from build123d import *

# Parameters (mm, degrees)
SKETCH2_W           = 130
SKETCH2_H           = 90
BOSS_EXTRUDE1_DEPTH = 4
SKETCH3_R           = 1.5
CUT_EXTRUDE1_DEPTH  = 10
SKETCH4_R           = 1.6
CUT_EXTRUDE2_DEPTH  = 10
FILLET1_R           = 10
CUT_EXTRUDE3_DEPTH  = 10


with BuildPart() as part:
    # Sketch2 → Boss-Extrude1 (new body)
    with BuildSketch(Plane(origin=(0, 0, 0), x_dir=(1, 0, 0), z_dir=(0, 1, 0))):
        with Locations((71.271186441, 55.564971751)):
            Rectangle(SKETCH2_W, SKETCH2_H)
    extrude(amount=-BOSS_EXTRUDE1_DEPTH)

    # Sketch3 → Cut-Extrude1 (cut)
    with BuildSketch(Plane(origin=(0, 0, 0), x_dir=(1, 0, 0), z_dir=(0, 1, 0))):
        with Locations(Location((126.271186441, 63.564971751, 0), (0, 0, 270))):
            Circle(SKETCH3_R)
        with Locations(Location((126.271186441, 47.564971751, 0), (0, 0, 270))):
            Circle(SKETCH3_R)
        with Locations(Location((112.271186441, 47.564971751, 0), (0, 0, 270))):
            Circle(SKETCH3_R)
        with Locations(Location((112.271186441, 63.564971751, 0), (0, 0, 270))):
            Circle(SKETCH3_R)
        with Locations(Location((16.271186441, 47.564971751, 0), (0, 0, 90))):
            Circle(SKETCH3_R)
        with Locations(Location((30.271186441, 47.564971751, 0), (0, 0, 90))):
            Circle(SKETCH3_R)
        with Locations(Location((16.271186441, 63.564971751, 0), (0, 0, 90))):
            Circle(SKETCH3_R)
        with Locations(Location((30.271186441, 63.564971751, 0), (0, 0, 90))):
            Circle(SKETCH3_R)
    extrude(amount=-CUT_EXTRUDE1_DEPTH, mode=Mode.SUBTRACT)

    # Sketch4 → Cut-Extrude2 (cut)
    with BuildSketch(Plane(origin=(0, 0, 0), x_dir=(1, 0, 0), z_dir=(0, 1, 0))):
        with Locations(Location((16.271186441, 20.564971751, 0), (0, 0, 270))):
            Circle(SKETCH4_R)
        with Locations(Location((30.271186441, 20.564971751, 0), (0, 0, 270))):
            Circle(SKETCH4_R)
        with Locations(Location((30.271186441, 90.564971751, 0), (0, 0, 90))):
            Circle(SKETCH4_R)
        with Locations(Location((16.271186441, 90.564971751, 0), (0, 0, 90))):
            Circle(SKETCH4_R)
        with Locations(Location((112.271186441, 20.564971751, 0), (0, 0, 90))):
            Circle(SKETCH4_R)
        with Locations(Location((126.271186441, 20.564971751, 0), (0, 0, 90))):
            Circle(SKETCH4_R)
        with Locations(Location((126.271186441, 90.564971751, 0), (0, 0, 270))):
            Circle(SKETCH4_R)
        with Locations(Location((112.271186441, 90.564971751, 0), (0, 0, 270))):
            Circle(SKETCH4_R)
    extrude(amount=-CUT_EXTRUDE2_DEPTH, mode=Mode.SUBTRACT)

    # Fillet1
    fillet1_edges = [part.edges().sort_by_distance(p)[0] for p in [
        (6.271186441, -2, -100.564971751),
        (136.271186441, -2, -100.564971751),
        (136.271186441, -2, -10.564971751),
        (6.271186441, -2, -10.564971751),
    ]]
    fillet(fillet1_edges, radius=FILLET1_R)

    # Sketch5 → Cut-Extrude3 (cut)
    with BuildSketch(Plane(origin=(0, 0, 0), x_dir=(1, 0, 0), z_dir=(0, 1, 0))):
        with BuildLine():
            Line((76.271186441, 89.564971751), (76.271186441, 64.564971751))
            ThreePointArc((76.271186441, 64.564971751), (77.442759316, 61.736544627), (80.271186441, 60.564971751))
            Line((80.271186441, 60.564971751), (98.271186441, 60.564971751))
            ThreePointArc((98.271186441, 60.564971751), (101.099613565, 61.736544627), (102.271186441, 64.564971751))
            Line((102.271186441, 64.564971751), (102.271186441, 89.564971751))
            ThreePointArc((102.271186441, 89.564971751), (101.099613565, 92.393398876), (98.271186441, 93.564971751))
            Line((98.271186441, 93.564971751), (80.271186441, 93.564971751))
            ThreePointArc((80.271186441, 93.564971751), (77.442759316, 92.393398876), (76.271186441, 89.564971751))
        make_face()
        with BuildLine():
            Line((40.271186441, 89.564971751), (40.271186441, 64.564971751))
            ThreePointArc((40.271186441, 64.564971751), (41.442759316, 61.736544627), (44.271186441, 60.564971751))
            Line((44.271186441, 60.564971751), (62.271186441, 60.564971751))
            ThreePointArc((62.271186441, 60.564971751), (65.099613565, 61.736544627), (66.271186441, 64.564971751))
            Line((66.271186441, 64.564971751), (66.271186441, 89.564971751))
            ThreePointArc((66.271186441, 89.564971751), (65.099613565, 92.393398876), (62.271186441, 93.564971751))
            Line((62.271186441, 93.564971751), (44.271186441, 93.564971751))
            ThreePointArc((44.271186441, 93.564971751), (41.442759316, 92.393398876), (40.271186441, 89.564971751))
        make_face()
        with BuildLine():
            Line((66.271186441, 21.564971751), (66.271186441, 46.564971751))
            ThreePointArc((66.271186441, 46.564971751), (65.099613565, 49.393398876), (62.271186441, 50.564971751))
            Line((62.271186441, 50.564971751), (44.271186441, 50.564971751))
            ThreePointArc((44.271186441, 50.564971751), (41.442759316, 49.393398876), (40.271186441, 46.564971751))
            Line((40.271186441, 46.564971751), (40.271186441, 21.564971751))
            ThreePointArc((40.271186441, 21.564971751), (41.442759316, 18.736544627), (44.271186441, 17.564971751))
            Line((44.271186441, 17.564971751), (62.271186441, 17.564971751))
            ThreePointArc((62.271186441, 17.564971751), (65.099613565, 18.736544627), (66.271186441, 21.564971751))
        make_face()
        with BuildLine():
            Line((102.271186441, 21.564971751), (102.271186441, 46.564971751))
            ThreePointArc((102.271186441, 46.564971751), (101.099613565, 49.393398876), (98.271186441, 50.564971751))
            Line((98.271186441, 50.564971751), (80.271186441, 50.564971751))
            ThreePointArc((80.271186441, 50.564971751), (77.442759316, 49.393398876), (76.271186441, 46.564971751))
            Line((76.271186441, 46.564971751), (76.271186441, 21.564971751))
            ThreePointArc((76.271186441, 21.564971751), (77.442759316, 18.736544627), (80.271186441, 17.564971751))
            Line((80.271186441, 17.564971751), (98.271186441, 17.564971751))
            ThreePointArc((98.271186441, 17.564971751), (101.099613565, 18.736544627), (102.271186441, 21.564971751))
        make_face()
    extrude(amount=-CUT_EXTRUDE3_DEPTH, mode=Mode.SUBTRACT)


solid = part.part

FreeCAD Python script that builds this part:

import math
import FreeCAD as App
import Part
import Sketcher


def edges_at(feature, points):
    """Names of the edges that pass closest to the given points."""
    edges = feature.Shape.Edges
    near = lambda p: min(range(len(edges)), key=lambda i: edges[i].distToShape(Part.Vertex(*p))[0])
    return sorted({f"Edge{near(p) + 1}" for p in points})


def add_polygon(sketch, points):
    """Adds a closed chain of lines whose ends are joined by coincident constraints."""
    first, n = sketch.GeometryCount, len(points)
    for a, b in zip(points, points[1:] + points[:1]):
        sketch.addGeometry(Part.LineSegment(App.Vector(*a, 0), App.Vector(*b, 0)), False)
    for i in range(n):
        sketch.addConstraint(Sketcher.Constraint("Coincident", first + i, 2, first + (i + 1) % n, 1))

doc = App.newDocument("Part")
body = doc.addObject("PartDesign::Body", "Body")

# Sketch on XZ plane
sketch1 = doc.addObject("Sketcher::SketchObject", "Sketch")
body.addObject(sketch1)
sketch1.AttachmentSupport = (doc.XZ_Plane, [""])
sketch1.MapMode = "FlatFace"
add_polygon(sketch1, [(6, -101), (6, -11), (136, -11), (136, -101)])  # lines 0-3
sketch1.addConstraint(Sketcher.Constraint("Vertical", 0))
sketch1.addConstraint(Sketcher.Constraint("Horizontal", 1))
sketch1.addConstraint(Sketcher.Constraint("Vertical", 2))
sketch1.addConstraint(Sketcher.Constraint("Horizontal", 3))
sketch1.addConstraint(Sketcher.Constraint("DistanceX", 1, 1, 1, 2, 130.0))
sketch1.addConstraint(Sketcher.Constraint("DistanceY", 0, 1, 0, 2, 90.0))
sketch1.addConstraint(Sketcher.Constraint("DistanceY", 0, 2, -1, 1, 10.564972))
sketch1.addConstraint(Sketcher.Constraint("DistanceX", -1, 1, 0, 2, 6.271186))
pad1 = doc.addObject("PartDesign::Pad", "Pad")
body.addObject(pad1)
pad1.Profile = sketch1
pad1.Length = 4

# Sketch on XZ plane
sketch2 = doc.addObject("Sketcher::SketchObject", "Sketch001")
body.addObject(sketch2)
sketch2.AttachmentSupport = (doc.XZ_Plane, [""])
sketch2.MapMode = "FlatFace"
sketch2.addGeometry(Part.Circle(App.Vector(126.3, -63.6, 0), App.Vector(0, 0, 1), 1.5), False)
sketch2.addGeometry(Part.Circle(App.Vector(126.3, -47.6, 0), App.Vector(0, 0, 1), 1.5), False)
sketch2.addGeometry(Part.Circle(App.Vector(112.3, -47.6, 0), App.Vector(0, 0, 1), 1.5), False)
sketch2.addGeometry(Part.Circle(App.Vector(112.3, -63.6, 0), App.Vector(0, 0, 1), 1.5), False)
sketch2.addGeometry(Part.Circle(App.Vector(16.3, -47.6, 0), App.Vector(0, 0, 1), 1.5), False)
sketch2.addGeometry(Part.Circle(App.Vector(30.3, -47.6, 0), App.Vector(0, 0, 1), 1.5), False)
sketch2.addGeometry(Part.Circle(App.Vector(16.3, -63.6, 0), App.Vector(0, 0, 1), 1.5), False)
sketch2.addGeometry(Part.Circle(App.Vector(30.3, -63.6, 0), App.Vector(0, 0, 1), 1.5), False)
sketch2.addConstraint(Sketcher.Constraint("Equal", 0, 1))
sketch2.addConstraint(Sketcher.Constraint("Equal", 1, 2))
sketch2.addConstraint(Sketcher.Constraint("Equal", 2, 3))
sketch2.addConstraint(Sketcher.Constraint("Equal", 3, 4))
sketch2.addConstraint(Sketcher.Constraint("Equal", 4, 5))
sketch2.addConstraint(Sketcher.Constraint("Equal", 5, 6))
sketch2.addConstraint(Sketcher.Constraint("Equal", 6, 7))
sketch2.addConstraint(Sketcher.Constraint("Horizontal", 1, 3, 2, 3))
sketch2.addConstraint(Sketcher.Constraint("Horizontal", 0, 3, 3, 3))
sketch2.addConstraint(Sketcher.Constraint("Horizontal", 2, 3, 4, 3))
sketch2.addConstraint(Sketcher.Constraint("Horizontal", 4, 3, 5, 3))
sketch2.addConstraint(Sketcher.Constraint("Horizontal", 3, 3, 6, 3))
sketch2.addConstraint(Sketcher.Constraint("Horizontal", 6, 3, 7, 3))
sketch2.addConstraint(Sketcher.Constraint("Vertical", 0, 3, 1, 3))
sketch2.addConstraint(Sketcher.Constraint("Vertical", 2, 3, 3, 3))
sketch2.addConstraint(Sketcher.Constraint("Vertical", 4, 3, 6, 3))
sketch2.addConstraint(Sketcher.Constraint("Vertical", 5, 3, 7, 3))
sketch2.addConstraint(Sketcher.Constraint("Diameter", 0, 3.0))
sketch2.addConstraint(Sketcher.Constraint("DistanceY", 0, 3, 1, 3, 16.0))
sketch2.addConstraint(Sketcher.Constraint("DistanceX", 2, 3, 1, 3, 14.0))
sketch2.addConstraint(Sketcher.Constraint("DistanceX", 4, 3, 2, 3, 96.0))
sketch2.addConstraint(Sketcher.Constraint("DistanceX", 4, 3, 5, 3, 14.0))
sketch2.addConstraint(Sketcher.Constraint("DistanceY", 0, 3, -1, 1, 63.564972))
sketch2.addConstraint(Sketcher.Constraint("DistanceX", -1, 1, 0, 3, 126.271186))
pocket1 = doc.addObject("PartDesign::Pocket", "Pocket")
body.addObject(pocket1)
pocket1.Profile = sketch2
pocket1.Length = 10
pocket1.Reversed = True

# Sketch on XZ plane
sketch3 = doc.addObject("Sketcher::SketchObject", "Sketch002")
body.addObject(sketch3)
sketch3.AttachmentSupport = (doc.XZ_Plane, [""])
sketch3.MapMode = "FlatFace"
sketch3.addGeometry(Part.Circle(App.Vector(16.3, -20.6, 0), App.Vector(0, 0, 1), 1.6), False)
sketch3.addGeometry(Part.Circle(App.Vector(30.3, -20.6, 0), App.Vector(0, 0, 1), 1.6), False)
sketch3.addGeometry(Part.Circle(App.Vector(30.3, -90.6, 0), App.Vector(0, 0, 1), 1.6), False)
sketch3.addGeometry(Part.Circle(App.Vector(16.3, -90.6, 0), App.Vector(0, 0, 1), 1.6), False)
sketch3.addGeometry(Part.Circle(App.Vector(112.3, -20.6, 0), App.Vector(0, 0, 1), 1.6), False)
sketch3.addGeometry(Part.Circle(App.Vector(126.3, -20.6, 0), App.Vector(0, 0, 1), 1.6), False)
sketch3.addGeometry(Part.Circle(App.Vector(126.3, -90.6, 0), App.Vector(0, 0, 1), 1.6), False)
sketch3.addGeometry(Part.Circle(App.Vector(112.3, -90.6, 0), App.Vector(0, 0, 1), 1.6), False)
sketch3.addConstraint(Sketcher.Constraint("Equal", 0, 1))
sketch3.addConstraint(Sketcher.Constraint("Equal", 1, 2))
sketch3.addConstraint(Sketcher.Constraint("Equal", 2, 3))
sketch3.addConstraint(Sketcher.Constraint("Equal", 3, 4))
sketch3.addConstraint(Sketcher.Constraint("Equal", 4, 5))
sketch3.addConstraint(Sketcher.Constraint("Equal", 5, 6))
sketch3.addConstraint(Sketcher.Constraint("Equal", 6, 7))
sketch3.addConstraint(Sketcher.Constraint("Horizontal", 0, 3, 1, 3))
sketch3.addConstraint(Sketcher.Constraint("Horizontal", 2, 3, 3, 3))
sketch3.addConstraint(Sketcher.Constraint("Horizontal", 1, 3, 4, 3))
sketch3.addConstraint(Sketcher.Constraint("Horizontal", 4, 3, 5, 3))
sketch3.addConstraint(Sketcher.Constraint("Horizontal", 3, 3, 6, 3))
sketch3.addConstraint(Sketcher.Constraint("Horizontal", 6, 3, 7, 3))
sketch3.addConstraint(Sketcher.Constraint("Vertical", 1, 3, 2, 3))
sketch3.addConstraint(Sketcher.Constraint("Vertical", 0, 3, 3, 3))
sketch3.addConstraint(Sketcher.Constraint("Vertical", 5, 3, 6, 3))
sketch3.addConstraint(Sketcher.Constraint("Vertical", 4, 3, 7, 3))
sketch3.addConstraint(Sketcher.Constraint("Diameter", 0, 3.2))
sketch3.addConstraint(Sketcher.Constraint("DistanceX", 0, 3, 1, 3, 14.0))
sketch3.addConstraint(Sketcher.Constraint("DistanceY", 2, 3, 1, 3, 70.0))
sketch3.addConstraint(Sketcher.Constraint("DistanceX", 1, 3, 4, 3, 82.0))
sketch3.addConstraint(Sketcher.Constraint("DistanceX", 4, 3, 5, 3, 14.0))
sketch3.addConstraint(Sketcher.Constraint("DistanceY", 0, 3, -1, 1, 20.564972))
sketch3.addConstraint(Sketcher.Constraint("DistanceX", -1, 1, 0, 3, 16.271186))
pocket2 = doc.addObject("PartDesign::Pocket", "Pocket001")
body.addObject(pocket2)
pocket2.Profile = sketch3
pocket2.Length = 10
pocket2.Reversed = True
doc.recompute()

fillet = doc.addObject("PartDesign::Fillet", "Fillet")
body.addObject(fillet)
fillet.Base = (pocket2, edges_at(pocket2, [
    (6.271, -2, -100.565),
    (136.271, -2, -100.565),
    (136.271, -2, -10.565),
    (6.271, -2, -10.565),
]))
fillet.Radius = 10

# Sketch on XZ plane
sketch4 = doc.addObject("Sketcher::SketchObject", "Sketch003")
body.addObject(sketch4)
sketch4.AttachmentSupport = (doc.XZ_Plane, [""])
sketch4.MapMode = "FlatFace"
sketch4.addGeometry(Part.LineSegment(App.Vector(76.3, -89.6, 0), App.Vector(76.3, -64.6, 0)), False)
sketch4.addGeometry(Part.ArcOfCircle(Part.Circle(App.Vector(80.3, -64.6, 0), App.Vector(0, 0, 1), 4), math.radians(90), math.radians(180)), False)
sketch4.addGeometry(Part.LineSegment(App.Vector(80.3, -60.6, 0), App.Vector(98.3, -60.6, 0)), False)
sketch4.addGeometry(Part.ArcOfCircle(Part.Circle(App.Vector(98.3, -64.6, 0), App.Vector(0, 0, 1), 4), math.radians(0), math.radians(90)), False)
sketch4.addGeometry(Part.LineSegment(App.Vector(102.3, -64.6, 0), App.Vector(102.3, -89.6, 0)), False)
sketch4.addGeometry(Part.ArcOfCircle(Part.Circle(App.Vector(98.3, -89.6, 0), App.Vector(0, 0, 1), 4), math.radians(-90), math.radians(0)), False)
sketch4.addGeometry(Part.LineSegment(App.Vector(98.3, -93.6, 0), App.Vector(80.3, -93.6, 0)), False)
sketch4.addGeometry(Part.ArcOfCircle(Part.Circle(App.Vector(80.3, -89.6, 0), App.Vector(0, 0, 1), 4), math.radians(180), math.radians(270)), False)
sketch4.addGeometry(Part.LineSegment(App.Vector(40.3, -89.6, 0), App.Vector(40.3, -64.6, 0)), False)
sketch4.addGeometry(Part.ArcOfCircle(Part.Circle(App.Vector(44.3, -64.6, 0), App.Vector(0, 0, 1), 4), math.radians(90), math.radians(180)), False)
sketch4.addGeometry(Part.LineSegment(App.Vector(44.3, -60.6, 0), App.Vector(62.3, -60.6, 0)), False)
sketch4.addGeometry(Part.ArcOfCircle(Part.Circle(App.Vector(62.3, -64.6, 0), App.Vector(0, 0, 1), 4), math.radians(0), math.radians(90)), False)
sketch4.addGeometry(Part.LineSegment(App.Vector(66.3, -64.6, 0), App.Vector(66.3, -89.6, 0)), False)
sketch4.addGeometry(Part.ArcOfCircle(Part.Circle(App.Vector(62.3, -89.6, 0), App.Vector(0, 0, 1), 4), math.radians(-90), math.radians(0)), False)
sketch4.addGeometry(Part.LineSegment(App.Vector(62.3, -93.6, 0), App.Vector(44.3, -93.6, 0)), False)
sketch4.addGeometry(Part.ArcOfCircle(Part.Circle(App.Vector(44.3, -89.6, 0), App.Vector(0, 0, 1), 4), math.radians(180), math.radians(270)), False)
sketch4.addGeometry(Part.LineSegment(App.Vector(66.3, -21.6, 0), App.Vector(66.3, -46.6, 0)), False)
sketch4.addGeometry(Part.ArcOfCircle(Part.Circle(App.Vector(62.3, -46.6, 0), App.Vector(0, 0, 1), 4), math.radians(-90), math.radians(0)), False)
sketch4.addGeometry(Part.LineSegment(App.Vector(62.3, -50.6, 0), App.Vector(44.3, -50.6, 0)), False)
sketch4.addGeometry(Part.ArcOfCircle(Part.Circle(App.Vector(44.3, -46.6, 0), App.Vector(0, 0, 1), 4), math.radians(180), math.radians(270)), False)
sketch4.addGeometry(Part.LineSegment(App.Vector(40.3, -46.6, 0), App.Vector(40.3, -21.6, 0)), False)
sketch4.addGeometry(Part.ArcOfCircle(Part.Circle(App.Vector(44.3, -21.6, 0), App.Vector(0, 0, 1), 4), math.radians(90), math.radians(180)), False)
sketch4.addGeometry(Part.LineSegment(App.Vector(44.3, -17.6, 0), App.Vector(62.3, -17.6, 0)), False)
sketch4.addGeometry(Part.ArcOfCircle(Part.Circle(App.Vector(62.3, -21.6, 0), App.Vector(0, 0, 1), 4), math.radians(0), math.radians(90)), False)
sketch4.addGeometry(Part.LineSegment(App.Vector(102.3, -21.6, 0), App.Vector(102.3, -46.6, 0)), False)
sketch4.addGeometry(Part.ArcOfCircle(Part.Circle(App.Vector(98.3, -46.6, 0), App.Vector(0, 0, 1), 4), math.radians(-90), math.radians(0)), False)
sketch4.addGeometry(Part.LineSegment(App.Vector(98.3, -50.6, 0), App.Vector(80.3, -50.6, 0)), False)
sketch4.addGeometry(Part.ArcOfCircle(Part.Circle(App.Vector(80.3, -46.6, 0), App.Vector(0, 0, 1), 4), math.radians(180), math.radians(270)), False)
sketch4.addGeometry(Part.LineSegment(App.Vector(76.3, -46.6, 0), App.Vector(76.3, -21.6, 0)), False)
sketch4.addGeometry(Part.ArcOfCircle(Part.Circle(App.Vector(80.3, -21.6, 0), App.Vector(0, 0, 1), 4), math.radians(90), math.radians(180)), False)
sketch4.addGeometry(Part.LineSegment(App.Vector(80.3, -17.6, 0), App.Vector(98.3, -17.6, 0)), False)
sketch4.addGeometry(Part.ArcOfCircle(Part.Circle(App.Vector(98.3, -21.6, 0), App.Vector(0, 0, 1), 4), math.radians(0), math.radians(90)), False)
sketch4.addConstraint(Sketcher.Constraint("Tangent", 0, 2, 1, 2))
sketch4.addConstraint(Sketcher.Constraint("Tangent", 1, 1, 2, 1))
sketch4.addConstraint(Sketcher.Constraint("Tangent", 2, 2, 3, 2))
sketch4.addConstraint(Sketcher.Constraint("Tangent", 3, 1, 4, 1))
sketch4.addConstraint(Sketcher.Constraint("Tangent", 4, 2, 5, 2))
sketch4.addConstraint(Sketcher.Constraint("Tangent", 5, 1, 6, 1))
sketch4.addConstraint(Sketcher.Constraint("Tangent", 6, 2, 7, 2))
sketch4.addConstraint(Sketcher.Constraint("Tangent", 7, 1, 0, 1))
sketch4.addConstraint(Sketcher.Constraint("Tangent", 8, 2, 9, 2))
sketch4.addConstraint(Sketcher.Constraint("Tangent", 9, 1, 10, 1))
sketch4.addConstraint(Sketcher.Constraint("Tangent", 10, 2, 11, 2))
sketch4.addConstraint(Sketcher.Constraint("Tangent", 11, 1, 12, 1))
sketch4.addConstraint(Sketcher.Constraint("Tangent", 12, 2, 13, 2))
sketch4.addConstraint(Sketcher.Constraint("Tangent", 13, 1, 14, 1))
sketch4.addConstraint(Sketcher.Constraint("Tangent", 14, 2, 15, 2))
sketch4.addConstraint(Sketcher.Constraint("Tangent", 15, 1, 8, 1))
sketch4.addConstraint(Sketcher.Constraint("Tangent", 16, 2, 17, 2))
sketch4.addConstraint(Sketcher.Constraint("Tangent", 17, 1, 18, 1))
sketch4.addConstraint(Sketcher.Constraint("Tangent", 18, 2, 19, 2))
sketch4.addConstraint(Sketcher.Constraint("Tangent", 19, 1, 20, 1))
sketch4.addConstraint(Sketcher.Constraint("Tangent", 20, 2, 21, 2))
sketch4.addConstraint(Sketcher.Constraint("Tangent", 21, 1, 22, 1))
sketch4.addConstraint(Sketcher.Constraint("Tangent", 22, 2, 23, 2))
sketch4.addConstraint(Sketcher.Constraint("Tangent", 23, 1, 16, 1))
sketch4.addConstraint(Sketcher.Constraint("Tangent", 24, 2, 25, 2))
sketch4.addConstraint(Sketcher.Constraint("Tangent", 25, 1, 26, 1))
sketch4.addConstraint(Sketcher.Constraint("Tangent", 26, 2, 27, 2))
sketch4.addConstraint(Sketcher.Constraint("Tangent", 27, 1, 28, 1))
sketch4.addConstraint(Sketcher.Constraint("Tangent", 28, 2, 29, 2))
sketch4.addConstraint(Sketcher.Constraint("Tangent", 29, 1, 30, 1))
sketch4.addConstraint(Sketcher.Constraint("Tangent", 30, 2, 31, 2))
sketch4.addConstraint(Sketcher.Constraint("Tangent", 31, 1, 24, 1))
sketch4.addConstraint(Sketcher.Constraint("Vertical", 0))
sketch4.addConstraint(Sketcher.Constraint("Horizontal", 2))
sketch4.addConstraint(Sketcher.Constraint("Vertical", 4))
sketch4.addConstraint(Sketcher.Constraint("Horizontal", 6))
sketch4.addConstraint(Sketcher.Constraint("Vertical", 8))
sketch4.addConstraint(Sketcher.Constraint("Horizontal", 10))
sketch4.addConstraint(Sketcher.Constraint("Vertical", 12))
sketch4.addConstraint(Sketcher.Constraint("Horizontal", 14))
sketch4.addConstraint(Sketcher.Constraint("Vertical", 16))
sketch4.addConstraint(Sketcher.Constraint("Horizontal", 18))
sketch4.addConstraint(Sketcher.Constraint("Vertical", 20))
sketch4.addConstraint(Sketcher.Constraint("Horizontal", 22))
sketch4.addConstraint(Sketcher.Constraint("Vertical", 24))
sketch4.addConstraint(Sketcher.Constraint("Horizontal", 26))
sketch4.addConstraint(Sketcher.Constraint("Vertical", 28))
sketch4.addConstraint(Sketcher.Constraint("Horizontal", 30))
sketch4.addConstraint(Sketcher.Constraint("Equal", 1, 3))
sketch4.addConstraint(Sketcher.Constraint("Equal", 3, 5))
sketch4.addConstraint(Sketcher.Constraint("Equal", 5, 7))
sketch4.addConstraint(Sketcher.Constraint("Equal", 7, 9))
sketch4.addConstraint(Sketcher.Constraint("Equal", 9, 11))
sketch4.addConstraint(Sketcher.Constraint("Equal", 11, 13))
sketch4.addConstraint(Sketcher.Constraint("Equal", 13, 15))
sketch4.addConstraint(Sketcher.Constraint("Equal", 15, 17))
sketch4.addConstraint(Sketcher.Constraint("Equal", 17, 19))
sketch4.addConstraint(Sketcher.Constraint("Equal", 19, 21))
sketch4.addConstraint(Sketcher.Constraint("Equal", 21, 23))
sketch4.addConstraint(Sketcher.Constraint("Equal", 23, 25))
sketch4.addConstraint(Sketcher.Constraint("Equal", 25, 27))
sketch4.addConstraint(Sketcher.Constraint("Equal", 27, 29))
sketch4.addConstraint(Sketcher.Constraint("Equal", 29, 31))
sketch4.addConstraint(Sketcher.Constraint("Horizontal", 3, 3, 9, 3))
sketch4.addConstraint(Sketcher.Constraint("Horizontal", 7, 3, 13, 3))
sketch4.addConstraint(Sketcher.Constraint("Horizontal", 19, 3, 25, 3))
sketch4.addConstraint(Sketcher.Constraint("Horizontal", 23, 3, 29, 3))
sketch4.addConstraint(Sketcher.Constraint("Vertical", 13, 3, 17, 3))
sketch4.addConstraint(Sketcher.Constraint("Vertical", 15, 3, 19, 3))
sketch4.addConstraint(Sketcher.Constraint("Vertical", 5, 3, 25, 3))
sketch4.addConstraint(Sketcher.Constraint("Vertical", 7, 3, 27, 3))
sketch4.addConstraint(Sketcher.Constraint("Equal", 6, 10))
sketch4.addConstraint(Sketcher.Constraint("Equal", 12, 16))
sketch4.addConstraint(Sketcher.Constraint("Radius", 1, 4.0))
sketch4.addConstraint(Sketcher.Constraint("DistanceX", 2, 1, 2, 2, 18.0))
sketch4.addConstraint(Sketcher.Constraint("DistanceY", 0, 1, 0, 2, 25.0))
sketch4.addConstraint(Sketcher.Constraint("DistanceX", 9, 3, 1, 3, 36.0))
sketch4.addConstraint(Sketcher.Constraint("DistanceY", 11, 3, 17, 3, 18.0))
sketch4.addConstraint(Sketcher.Constraint("DistanceY", 1, 3, -1, 1, 64.564972))
sketch4.addConstraint(Sketcher.Constraint("DistanceX", -1, 1, 1, 3, 80.271186))
pocket3 = doc.addObject("PartDesign::Pocket", "Pocket002")
body.addObject(pocket3)
pocket3.Profile = sketch4
pocket3.Length = 10
pocket3.Reversed = True

doc.recompute()
